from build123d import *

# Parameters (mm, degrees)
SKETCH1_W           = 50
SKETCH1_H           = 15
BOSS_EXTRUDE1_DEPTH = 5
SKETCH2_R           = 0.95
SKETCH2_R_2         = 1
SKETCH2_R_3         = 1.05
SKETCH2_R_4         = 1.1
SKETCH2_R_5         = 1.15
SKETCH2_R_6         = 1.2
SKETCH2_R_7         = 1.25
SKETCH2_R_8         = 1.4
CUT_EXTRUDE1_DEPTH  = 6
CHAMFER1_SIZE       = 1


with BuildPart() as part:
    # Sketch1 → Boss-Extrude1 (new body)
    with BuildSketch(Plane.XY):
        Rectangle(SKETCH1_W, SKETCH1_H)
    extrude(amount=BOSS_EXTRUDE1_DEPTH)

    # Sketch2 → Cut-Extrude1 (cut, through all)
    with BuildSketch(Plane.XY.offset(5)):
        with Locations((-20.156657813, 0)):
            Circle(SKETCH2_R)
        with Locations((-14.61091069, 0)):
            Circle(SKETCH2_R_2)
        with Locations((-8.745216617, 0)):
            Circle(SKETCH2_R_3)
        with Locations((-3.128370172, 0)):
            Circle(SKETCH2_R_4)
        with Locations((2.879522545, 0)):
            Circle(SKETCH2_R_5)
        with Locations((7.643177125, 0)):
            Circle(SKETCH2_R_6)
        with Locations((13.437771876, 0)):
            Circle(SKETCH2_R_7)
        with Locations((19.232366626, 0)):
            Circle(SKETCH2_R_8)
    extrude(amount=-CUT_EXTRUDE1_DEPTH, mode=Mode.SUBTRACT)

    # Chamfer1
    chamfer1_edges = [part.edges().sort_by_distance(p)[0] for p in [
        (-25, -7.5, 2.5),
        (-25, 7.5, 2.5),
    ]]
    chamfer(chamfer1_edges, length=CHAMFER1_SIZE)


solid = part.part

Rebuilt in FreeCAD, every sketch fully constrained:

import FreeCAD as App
import Part
import Sketcher

V = App.Vector


def edges_at(feature, points):
    """Names of the edges that pass closest to the given points."""
    edges = feature.Shape.Edges
    near = lambda p: min(range(len(edges)), key=lambda i: edges[i].distToShape(Part.Vertex(*p))[0])
    return sorted({f"Edge{near(p) + 1}" for p in points})

doc = App.newDocument("Part")
body = doc.addObject("PartDesign::Body", "Body")

sketch1 = body.newObject("Sketcher::SketchObject", "Sketch")
sketch1.AttachmentSupport = (doc.getObject("XY_Plane"), [""])
sketch1.MapMode = "FlatFace"
sketch1.addGeometry([
    Part.LineSegment(V(-25, 8, 0), V(-25, -8, 0)),
    Part.LineSegment(V(-25, -8, 0), V(25, -8, 0)),
    Part.LineSegment(V(25, -8, 0), V(25, 8, 0)),
    Part.LineSegment(V(25, 8, 0), V(-25, 8, 0)),
], False)
sketch1.addConstraint([
    Sketcher.Constraint("Coincident", 0, 2, 1, 1),
    Sketcher.Constraint("Coincident", 1, 2, 2, 1),
    Sketcher.Constraint("Coincident", 2, 2, 3, 1),
    Sketcher.Constraint("Coincident", 3, 2, 0, 1),
    Sketcher.Constraint("Vertical", 0),
    Sketcher.Constraint("Horizontal", 1),
    Sketcher.Constraint("Vertical", 2),
    Sketcher.Constraint("Horizontal", 3),
    Sketcher.Constraint("Symmetric", 0, 2, 2, 2, -1, 1),
    Sketcher.Constraint("DistanceX", 1, 1, 1, 2, 50.0),
    Sketcher.Constraint("DistanceY", 0, 2, 0, 1, 15.0),
])
pad1 = body.newObject("PartDesign::Pad", "Pad")
pad1.Profile = sketch1
pad1.Length = 5

sketch2 = body.newObject("Sketcher::SketchObject", "Sketch001")
sketch2.AttachmentSupport = (doc.getObject("XY_Plane"), [""])
sketch2.MapMode = "FlatFace"
sketch2.AttachmentOffset = App.Placement(V(0, 0, 5), App.Rotation())
sketch2.addGeometry([
    Part.Circle(V(-20.2, 0, 0), V(0, 0, 1), 0.9),
    Part.Circle(V(-14.6, 0, 0), V(0, 0, 1), 1),
    Part.Circle(V(-8.7, 0, 0), V(0, 0, 1), 1.1),
    Part.Circle(V(-3.1, 0, 0), V(0, 0, 1), 1.1),
    Part.Circle(V(2.9, 0, 0), V(0, 0, 1), 1.1),
    Part.Circle(V(7.6, 0, 0), V(0, 0, 1), 1.2),
    Part.Circle(V(13.4, 0, 0), V(0, 0, 1), 1.2),
    Part.Circle(V(19.2, 0, 0), V(0, 0, 1), 1.4),
], False)
sketch2.addConstraint([
    Sketcher.Constraint("PointOnObject", 0, 3, -1),
    Sketcher.Constraint("PointOnObject", 1, 3, -1),
    Sketcher.Constraint("PointOnObject", 2, 3, -1),
    Sketcher.Constraint("PointOnObject", 3, 3, -1),
    Sketcher.Constraint("PointOnObject", 4, 3, -1),
    Sketcher.Constraint("PointOnObject", 5, 3, -1),
    Sketcher.Constraint("PointOnObject", 6, 3, -1),
    Sketcher.Constraint("PointOnObject", 7, 3, -1),
    Sketcher.Constraint("Diameter", 1, 2.0),
    Sketcher.Constraint("Diameter", 0, 1.9),
    Sketcher.Constraint("Diameter", 2, 2.1),
    Sketcher.Constraint("Diameter", 3, 2.2),
    Sketcher.Constraint("Diameter", 4, 2.3),
    Sketcher.Constraint("Diameter", 5, 2.4),
    Sketcher.Constraint("Diameter", 6, 2.5),
    Sketcher.Constraint("Diameter", 7, 2.8),
    Sketcher.Constraint("DistanceX", 1, 3, -1, 1, 14.610911),
    Sketcher.Constraint("DistanceX", 3, 3, -1, 1, 3.12837),
    Sketcher.Constraint("DistanceX", -1, 1, 6, 3, 13.437772),
    Sketcher.Constraint("DistanceX", 0, 3, 2, 3, 11.411441),
    Sketcher.Constraint("DistanceX", 2, 3, 4, 3, 11.624739),
    Sketcher.Constraint("DistanceX", 4, 3, 6, 3, 10.558249),
    Sketcher.Constraint("DistanceX", 5, 3, 7, 3, 11.58919),
    Sketcher.Constraint("DistanceX", -1, 1, 5, 3, 7.643177),
])
pocket1 = body.newObject("PartDesign::Pocket", "Pocket")
pocket1.Profile = sketch2
pocket1.Type = "ThroughAll"
doc.recompute()

chamfer = body.newObject("PartDesign::Chamfer", "Chamfer")
chamfer.Base = (pocket1, edges_at(pocket1, [(-25, -7.5, 2.5), (-25, 7.5, 2.5)]))
chamfer.Size = 1

doc.recompute()
